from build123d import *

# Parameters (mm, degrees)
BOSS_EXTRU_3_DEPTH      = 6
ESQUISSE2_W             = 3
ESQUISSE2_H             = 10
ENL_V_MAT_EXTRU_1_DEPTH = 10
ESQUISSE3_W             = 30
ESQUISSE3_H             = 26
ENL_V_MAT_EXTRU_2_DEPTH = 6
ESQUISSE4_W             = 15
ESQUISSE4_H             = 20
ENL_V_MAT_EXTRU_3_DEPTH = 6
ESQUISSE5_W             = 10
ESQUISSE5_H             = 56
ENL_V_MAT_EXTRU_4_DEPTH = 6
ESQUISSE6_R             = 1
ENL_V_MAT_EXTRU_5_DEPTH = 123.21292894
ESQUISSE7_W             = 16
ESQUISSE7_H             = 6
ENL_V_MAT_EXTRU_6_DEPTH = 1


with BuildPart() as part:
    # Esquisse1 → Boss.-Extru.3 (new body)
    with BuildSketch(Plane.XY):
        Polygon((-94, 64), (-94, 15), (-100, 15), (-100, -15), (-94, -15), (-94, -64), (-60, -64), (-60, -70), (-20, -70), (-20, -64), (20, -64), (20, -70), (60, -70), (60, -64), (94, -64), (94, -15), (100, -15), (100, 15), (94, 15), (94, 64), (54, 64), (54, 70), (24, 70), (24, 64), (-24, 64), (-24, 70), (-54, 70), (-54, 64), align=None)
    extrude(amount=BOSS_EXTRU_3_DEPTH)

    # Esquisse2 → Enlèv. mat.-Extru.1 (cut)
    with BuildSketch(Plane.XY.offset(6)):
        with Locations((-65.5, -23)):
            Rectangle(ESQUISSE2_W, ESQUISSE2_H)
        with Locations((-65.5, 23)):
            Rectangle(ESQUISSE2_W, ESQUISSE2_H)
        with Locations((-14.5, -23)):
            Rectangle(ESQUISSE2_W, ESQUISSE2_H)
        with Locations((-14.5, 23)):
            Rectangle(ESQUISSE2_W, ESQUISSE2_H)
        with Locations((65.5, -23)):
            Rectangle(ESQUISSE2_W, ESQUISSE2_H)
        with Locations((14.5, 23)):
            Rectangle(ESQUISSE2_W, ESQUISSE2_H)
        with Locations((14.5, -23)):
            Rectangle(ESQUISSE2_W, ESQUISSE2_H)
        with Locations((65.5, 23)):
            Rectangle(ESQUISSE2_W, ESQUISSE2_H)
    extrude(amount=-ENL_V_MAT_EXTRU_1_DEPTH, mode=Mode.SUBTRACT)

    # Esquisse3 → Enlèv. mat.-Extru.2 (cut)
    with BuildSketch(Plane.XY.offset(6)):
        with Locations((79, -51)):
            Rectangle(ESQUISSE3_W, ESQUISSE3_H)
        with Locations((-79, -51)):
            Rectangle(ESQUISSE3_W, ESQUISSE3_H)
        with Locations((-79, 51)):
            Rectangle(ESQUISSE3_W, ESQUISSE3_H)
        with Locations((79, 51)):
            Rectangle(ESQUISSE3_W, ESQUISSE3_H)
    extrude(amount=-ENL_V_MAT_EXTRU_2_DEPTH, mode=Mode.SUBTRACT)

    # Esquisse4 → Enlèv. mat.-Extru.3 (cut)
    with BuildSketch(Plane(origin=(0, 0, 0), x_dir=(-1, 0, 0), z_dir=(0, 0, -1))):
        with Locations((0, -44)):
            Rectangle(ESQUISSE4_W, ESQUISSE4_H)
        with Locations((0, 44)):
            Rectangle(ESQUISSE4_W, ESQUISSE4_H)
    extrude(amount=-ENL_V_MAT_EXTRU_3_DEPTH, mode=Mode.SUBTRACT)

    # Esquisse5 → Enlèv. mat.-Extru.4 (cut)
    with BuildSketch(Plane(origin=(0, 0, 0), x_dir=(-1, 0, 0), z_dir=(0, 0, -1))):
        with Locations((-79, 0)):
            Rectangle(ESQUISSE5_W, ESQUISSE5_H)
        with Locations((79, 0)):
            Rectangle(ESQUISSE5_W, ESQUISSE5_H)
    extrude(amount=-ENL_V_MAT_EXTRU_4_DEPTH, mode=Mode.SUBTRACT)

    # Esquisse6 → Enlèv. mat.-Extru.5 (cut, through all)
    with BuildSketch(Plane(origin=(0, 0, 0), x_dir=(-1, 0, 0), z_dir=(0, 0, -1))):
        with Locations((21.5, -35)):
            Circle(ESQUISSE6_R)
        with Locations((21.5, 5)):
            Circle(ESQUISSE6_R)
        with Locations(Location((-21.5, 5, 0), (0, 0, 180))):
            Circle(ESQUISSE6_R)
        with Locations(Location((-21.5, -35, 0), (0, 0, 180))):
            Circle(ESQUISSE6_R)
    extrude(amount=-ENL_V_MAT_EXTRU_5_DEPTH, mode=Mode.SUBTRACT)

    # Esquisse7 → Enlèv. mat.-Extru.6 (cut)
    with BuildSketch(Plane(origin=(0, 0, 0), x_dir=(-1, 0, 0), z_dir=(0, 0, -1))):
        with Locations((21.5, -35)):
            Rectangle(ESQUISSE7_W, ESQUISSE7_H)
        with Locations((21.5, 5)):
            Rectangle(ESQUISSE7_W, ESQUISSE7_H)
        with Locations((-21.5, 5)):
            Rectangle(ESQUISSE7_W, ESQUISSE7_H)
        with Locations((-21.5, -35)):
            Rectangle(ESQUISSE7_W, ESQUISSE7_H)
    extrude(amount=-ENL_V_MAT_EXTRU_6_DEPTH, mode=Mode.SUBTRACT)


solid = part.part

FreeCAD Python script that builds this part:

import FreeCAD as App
import Part
import Sketcher
from FreeCAD import Vector
Q = App.Units.Quantity


def add_polygon(sketch, points):
    """Adds a closed chain of lines whose ends are joined by coincident constraints."""
    first, n = sketch.GeometryCount, len(points)
    for a, b in zip(points, points[1:] + points[:1]):
        sketch.addGeometry(Part.LineSegment(App.Vector(*a, 0), App.Vector(*b, 0)), False)
    for i in range(n):
        sketch.addConstraint(Sketcher.Constraint("Coincident", first + i, 2, first + (i + 1) % n, 1))

doc = App.newDocument("Part")
body = doc.addObject("PartDesign::Body", "Body")

sketch1 = doc.addObject("Sketcher::SketchObject", "Sketch")
body.addObject(sketch1)
sketch1.AttachmentSupport = (doc.XY_Plane, [""])
sketch1.MapMode = "FlatFace"
add_polygon(sketch1, [(-94, 64), (-94, 15), (-100, 15), (-100, -15), (-94, -15), (-94, -64), (-60, -64), (-60, -70), (-20, -70), (-20, -64), (20, -64), (20, -70), (60, -70), (60, -64), (94, -64), (94, -15), (100, -15), (100, 15), (94, 15), (94, 64), (54, 64), (54, 70), (24, 70), (24, 64), (-24, 64), (-24, 70), (-54, 70), (-54, 64)])
sketch1.addConstraint(Sketcher.Constraint("Vertical", 0))
sketch1.addConstraint(Sketcher.Constraint("Horizontal", 1))
sketch1.addConstraint(Sketcher.Constraint("Vertical", 2))
sketch1.addConstraint(Sketcher.Constraint("Horizontal", 3))
sketch1.addConstraint(Sketcher.Constraint("Vertical", 4))
sketch1.addConstraint(Sketcher.Constraint("Horizontal", 5))
sketch1.addConstraint(Sketcher.Constraint("Vertical", 6))
sketch1.addConstraint(Sketcher.Constraint("Horizontal", 7))
sketch1.addConstraint(Sketcher.Constraint("Vertical", 8))
sketch1.addConstraint(Sketcher.Constraint("Horizontal", 9))
sketch1.addConstraint(Sketcher.Constraint("Vertical", 10))
sketch1.addConstraint(Sketcher.Constraint("Horizontal", 11))
sketch1.addConstraint(Sketcher.Constraint("Vertical", 12))
sketch1.addConstraint(Sketcher.Constraint("Horizontal", 13))
sketch1.addConstraint(Sketcher.Constraint("Vertical", 14))
sketch1.addConstraint(Sketcher.Constraint("Horizontal", 15))
sketch1.addConstraint(Sketcher.Constraint("Vertical", 16))
sketch1.addConstraint(Sketcher.Constraint("Horizontal", 17))
sketch1.addConstraint(Sketcher.Constraint("Vertical", 18))
sketch1.addConstraint(Sketcher.Constraint("Horizontal", 19))
sketch1.addConstraint(Sketcher.Constraint("Vertical", 20))
sketch1.addConstraint(Sketcher.Constraint("Horizontal", 21))
sketch1.addConstraint(Sketcher.Constraint("Vertical", 22))
sketch1.addConstraint(Sketcher.Constraint("Horizontal", 23))
sketch1.addConstraint(Sketcher.Constraint("Vertical", 24))
sketch1.addConstraint(Sketcher.Constraint("Horizontal", 25))
sketch1.addConstraint(Sketcher.Constraint("Vertical", 26))
sketch1.addConstraint(Sketcher.Constraint("Horizontal", 27))
sketch1.addConstraint(Sketcher.Constraint("Symmetric", 0, 2, 14, 2, -1, 1))
sketch1.addConstraint(Sketcher.Constraint("Symmetric", 2, 2, 16, 2, -1, 1))
sketch1.addConstraint(Sketcher.Constraint("Symmetric", 4, 2, 18, 2, -1, 1))
sketch1.addConstraint(Sketcher.Constraint("Symmetric", 7, 2, 10, 2, -2))
sketch1.addConstraint(Sketcher.Constraint("Symmetric", 5, 2, 12, 2, -2))
sketch1.addConstraint(Sketcher.Constraint("Symmetric", 3, 2, 14, 2, -2))
sketch1.addConstraint(Sketcher.Constraint("Symmetric", 21, 2, 24, 2, -2))
sketch1.addConstraint(Sketcher.Constraint("Symmetric", 19, 2, 26, 2, -2))
sketch1.addConstraint(Sketcher.Constraint("Horizontal", 5, 2, 8, 2))
sketch1.addConstraint(Sketcher.Constraint("Horizontal", 19, 2, 22, 2))
sketch1.addConstraint(Sketcher.Constraint("Equal", 7, 9))
sketch1.addConstraint(Sketcher.Constraint("Equal", 11, 19))
sketch1.addConstraint(Sketcher.Constraint("Equal", 25, 2))
sketch1.addConstraint(Sketcher.Constraint("Equal", 17, 6))
sketch1.addConstraint(Sketcher.Constraint("Equal", 12, 20))
sketch1.addConstraint(Sketcher.Constraint("DistanceX", 1, 2, 1, 1, Q("6 mm")))
sketch1.addConstraint(Sketcher.Constraint("DistanceX", 5, 1, 5, 2, Q("34 mm")))
sketch1.addConstraint(Sketcher.Constraint("DistanceX", 7, 1, 7, 2, Q("40 mm")))
sketch1.addConstraint(Sketcher.Constraint("DistanceX", 21, 2, 21, 1, Q("30 mm")))
sketch1.addConstraint(Sketcher.Constraint("DistanceY", 0, 2, 0, 1, Q("49 mm")))
pad1 = doc.addObject("PartDesign::Pad", "Pad")
body.addObject(pad1)
pad1.Profile = sketch1
pad1.Length = 6

sketch2 = doc.addObject("Sketcher::SketchObject", "Sketch001")
body.addObject(sketch2)
sketch2.AttachmentSupport = (doc.XY_Plane, [""])
sketch2.MapMode = "FlatFace"
sketch2.AttachmentOffset = App.Placement(Vector(0, 0, 6), App.Rotation())
add_polygon(sketch2, [(-67, -18), (-67, -28), (-64, -28), (-64, -18)])
add_polygon(sketch2, [(-67, 28), (-67, 18), (-64, 18), (-64, 28)])
add_polygon(sketch2, [(-16, -18), (-16, -28), (-13, -28), (-13, -18)])
add_polygon(sketch2, [(-16, 28), (-16, 18), (-13, 18), (-13, 28)])
add_polygon(sketch2, [(64, -18), (64, -28), (67, -28), (67, -18)])
add_polygon(sketch2, [(13, 28), (13, 18), (16, 18), (16, 28)])
add_polygon(sketch2, [(13, -18), (13, -28), (16, -28), (16, -18)])
add_polygon(sketch2, [(64, 28), (64, 18), (67, 18), (67, 28)])
sketch2.addConstraint(Sketcher.Constraint("Vertical", 0))
sketch2.addConstraint(Sketcher.Constraint("Horizontal", 1))
sketch2.addConstraint(Sketcher.Constraint("Vertical", 2))
sketch2.addConstraint(Sketcher.Constraint("Horizontal", 3))
sketch2.addConstraint(Sketcher.Constraint("Vertical", 4))
sketch2.addConstraint(Sketcher.Constraint("Horizontal", 5))
sketch2.addConstraint(Sketcher.Constraint("Vertical", 6))
sketch2.addConstraint(Sketcher.Constraint("Horizontal", 7))
sketch2.addConstraint(Sketcher.Constraint("Vertical", 8))
sketch2.addConstraint(Sketcher.Constraint("Horizontal", 9))
sketch2.addConstraint(Sketcher.Constraint("Vertical", 10))
sketch2.addConstraint(Sketcher.Constraint("Horizontal", 11))
sketch2.addConstraint(Sketcher.Constraint("Vertical", 12))
sketch2.addConstraint(Sketcher.Constraint("Horizontal", 13))
sketch2.addConstraint(Sketcher.Constraint("Vertical", 14))
sketch2.addConstraint(Sketcher.Constraint("Horizontal", 15))
sketch2.addConstraint(Sketcher.Constraint("Vertical", 16))
sketch2.addConstraint(Sketcher.Constraint("Horizontal", 17))
sketch2.addConstraint(Sketcher.Constraint("Vertical", 18))
sketch2.addConstraint(Sketcher.Constraint("Horizontal", 19))
sketch2.addConstraint(Sketcher.Constraint("Vertical", 20))
sketch2.addConstraint(Sketcher.Constraint("Horizontal", 21))
sketch2.addConstraint(Sketcher.Constraint("Vertical", 22))
sketch2.addConstraint(Sketcher.Constraint("Horizontal", 23))
sketch2.addConstraint(Sketcher.Constraint("Vertical", 24))
sketch2.addConstraint(Sketcher.Constraint("Horizontal", 25))
sketch2.addConstraint(Sketcher.Constraint("Vertical", 26))
sketch2.addConstraint(Sketcher.Constraint("Horizontal", 27))
sketch2.addConstraint(Sketcher.Constraint("Vertical", 28))
sketch2.addConstraint(Sketcher.Constraint("Horizontal", 29))
sketch2.addConstraint(Sketcher.Constraint("Vertical", 30))
sketch2.addConstraint(Sketcher.Constraint("Horizontal", 31))
sketch2.addConstraint(Sketcher.Constraint("Symmetric", 6, 2, 16, 2, -1, 1))
sketch2.addConstraint(Sketcher.Constraint("Symmetric", 4, 2, 18, 2, -1, 1))
sketch2.addConstraint(Sketcher.Constraint("Symmetric", 10, 2, 20, 2, -1, 1))
sketch2.addConstraint(Sketcher.Constraint("Symmetric", 8, 2, 22, 2, -1, 1))
sketch2.addConstraint(Sketcher.Constraint("Symmetric", 14, 2, 24, 2, -1, 1))
sketch2.addConstraint(Sketcher.Constraint("Symmetric", 12, 2, 26, 2, -1, 1))
sketch2.addConstraint(Sketcher.Constraint("Symmetric", 2, 2, 28, 2, -1, 1))
sketch2.addConstraint(Sketcher.Constraint("Symmetric", 0, 2, 30, 2, -1, 1))
sketch2.addConstraint(Sketcher.Constraint("Symmetric", 1, 2, 16, 2, -2))
sketch2.addConstraint(Sketcher.Constraint("Symmetric", 3, 2, 18, 2, -2))
sketch2.addConstraint(Sketcher.Constraint("Symmetric", 13, 2, 20, 2, -2))
sketch2.addConstraint(Sketcher.Constraint("Symmetric", 15, 2, 22, 2, -2))
sketch2.addConstraint(Sketcher.Constraint("Horizontal", 1, 2, 8, 2))
sketch2.addConstraint(Sketcher.Constraint("Horizontal", 3, 2, 10, 2))
sketch2.addConstraint(Sketcher.Constraint("Equal", 7, 9))
sketch2.addConstraint(Sketcher.Constraint("DistanceX", 1, 1, 1, 2, Q("3 mm")))
sketch2.addConstraint(Sketcher.Constraint("DistanceY", 0, 2, 0, 1, Q("10 mm")))
sketch2.addConstraint(Sketcher.Constraint("DistanceX", 0, 2, -1, 1, Q("67 mm")))
sketch2.addConstraint(Sketcher.Constraint("DistanceY", 0, 2, -1, 1, Q("28 mm")))
sketch2.addConstraint(Sketcher.Constraint("DistanceX", 8, 2, -1, 1, Q("16 mm")))
pocket1 = doc.addObject("PartDesign::Pocket", "Pocket")
body.addObject(pocket1)
pocket1.Profile = sketch2
pocket1.Length = 10

sketch3 = doc.addObject("Sketcher::SketchObject", "Sketch002")
body.addObject(sketch3)
sketch3.AttachmentSupport = (doc.XY_Plane, [""])
sketch3.MapMode = "FlatFace"
sketch3.AttachmentOffset = App.Placement(Vector(0, 0, 6), App.Rotation())
add_polygon(sketch3, [(64, -38), (64, -64), (94, -64), (94, -38)])
add_polygon(sketch3, [(-94, -38), (-94, -64), (-64, -64), (-64, -38)])
add_polygon(sketch3, [(-94, 64), (-94, 38), (-64, 38), (-64, 64)])
add_polygon(sketch3, [(64, 64), (64, 38), (94, 38), (94, 64)])
sketch3.addConstraint(Sketcher.Constraint("Vertical", 0))
sketch3.addConstraint(Sketcher.Constraint("Horizontal", 1))
sketch3.addConstraint(Sketcher.Constraint("Vertical", 2))
sketch3.addConstraint(Sketcher.Constraint("Horizontal", 3))
sketch3.addConstraint(Sketcher.Constraint("Vertical", 4))
sketch3.addConstraint(Sketcher.Constraint("Horizontal", 5))
sketch3.addConstraint(Sketcher.Constraint("Vertical", 6))
sketch3.addConstraint(Sketcher.Constraint("Horizontal", 7))
sketch3.addConstraint(Sketcher.Constraint("Vertical", 8))
sketch3.addConstraint(Sketcher.Constraint("Horizontal", 9))
sketch3.addConstraint(Sketcher.Constraint("Vertical", 10))
sketch3.addConstraint(Sketcher.Constraint("Horizontal", 11))
sketch3.addConstraint(Sketcher.Constraint("Vertical", 12))
sketch3.addConstraint(Sketcher.Constraint("Horizontal", 13))
sketch3.addConstraint(Sketcher.Constraint("Vertical", 14))
sketch3.addConstraint(Sketcher.Constraint("Horizontal", 15))
sketch3.addConstraint(Sketcher.Constraint("Symmetric", 2, 2, 8, 2, -1, 1))
sketch3.addConstraint(Sketcher.Constraint("Symmetric", 0, 2, 10, 2, -1, 1))
sketch3.addConstraint(Sketcher.Constraint("Symmetric", 6, 2, 12, 2, -1, 1))
sketch3.addConstraint(Sketcher.Constraint("Symmetric", 4, 2, 14, 2, -1, 1))
sketch3.addConstraint(Sketcher.Constraint("Symmetric", 1, 2, 4, 2, -2))
sketch3.addConstraint(Sketcher.Constraint("Symmetric", 3, 2, 6, 2, -2))
sketch3.addConstraint(Sketcher.Constraint("DistanceX", 1, 1, 1, 2, Q("30 mm")))
sketch3.addConstraint(Sketcher.Constraint("DistanceY", 0, 2, 0, 1, Q("26 mm")))
sketch3.addConstraint(Sketcher.Constraint("DistanceX", -1, 1, 0, 2, Q("64 mm")))
sketch3.addConstraint(Sketcher.Constraint("DistanceY", 0, 2, -1, 1, Q("64 mm")))
pocket2 = doc.addObject("PartDesign::Pocket", "Pocket001")
body.addObject(pocket2)
pocket2.Profile = sketch3
pocket2.Length = 6

sketch4 = doc.addObject("Sketcher::SketchObject", "Sketch003")
body.addObject(sketch4)
sketch4.AttachmentSupport = (doc.XY_Plane, [""])
sketch4.MapMode = "FlatFace"
add_polygon(sketch4, [(7.5, -34), (7.5, -54), (-7.5, -54), (-7.5, -34)])
add_polygon(sketch4, [(7.5, 54), (7.5, 34), (-7.5, 34), (-7.5, 54)])
sketch4.addConstraint(Sketcher.Constraint("Vertical", 0))
sketch4.addConstraint(Sketcher.Constraint("Horizontal", 1))
sketch4.addConstraint(Sketcher.Constraint("Vertical", 2))
sketch4.addConstraint(Sketcher.Constraint("Horizontal", 3))
sketch4.addConstraint(Sketcher.Constraint("Vertical", 4))
sketch4.addConstraint(Sketcher.Constraint("Horizontal", 5))
sketch4.addConstraint(Sketcher.Constraint("Vertical", 6))
sketch4.addConstraint(Sketcher.Constraint("Horizontal", 7))
sketch4.addConstraint(Sketcher.Constraint("Symmetric", 2, 2, 4, 2, -1, 1))
sketch4.addConstraint(Sketcher.Constraint("Symmetric", 0, 2, 6, 2, -1, 1))
sketch4.addConstraint(Sketcher.Constraint("Vertical", 3, 2, 4, 2))
sketch4.addConstraint(Sketcher.Constraint("DistanceX", 1, 2, 1, 1, Q("15 mm")))
sketch4.addConstraint(Sketcher.Constraint("DistanceY", 0, 2, 0, 1, Q("20 mm")))
sketch4.addConstraint(Sketcher.Constraint("DistanceY", 0, 2, -1, 1, Q("54 mm")))
pocket3 = doc.addObject("PartDesign::Pocket", "Pocket002")
body.addObject(pocket3)
pocket3.Profile = sketch4
pocket3.Length = 6
pocket3.Reversed = True

sketch5 = doc.addObject("Sketcher::SketchObject", "Sketch004")
body.addObject(sketch5)
sketch5.AttachmentSupport = (doc.XY_Plane, [""])
sketch5.MapMode = "FlatFace"
add_polygon(sketch5, [(84, 28), (84, -28), (74, -28), (74, 28)])
add_polygon(sketch5, [(-74, 28), (-74, -28), (-84, -28), (-84, 28)])
sketch5.addConstraint(Sketcher.Constraint("Vertical", 0))
sketch5.addConstraint(Sketcher.Constraint("Horizontal", 1))
sketch5.addConstraint(Sketcher.Constraint("Vertical", 2))
sketch5.addConstraint(Sketcher.Constraint("Horizontal", 3))
sketch5.addConstraint(Sketcher.Constraint("Vertical", 4))
sketch5.addConstraint(Sketcher.Constraint("Horizontal", 5))
sketch5.addConstraint(Sketcher.Constraint("Vertical", 6))
sketch5.addConstraint(Sketcher.Constraint("Horizontal", 7))
sketch5.addConstraint(Sketcher.Constraint("Symmetric", 2, 2, 4, 2, -1, 1))
sketch5.addConstraint(Sketcher.Constraint("Symmetric", 0, 2, 6, 2, -1, 1))
sketch5.addConstraint(Sketcher.Constraint("Horizontal", 1, 2, 4, 2))
sketch5.addConstraint(Sketcher.Constraint("DistanceX", 1, 2, 1, 1, Q("10 mm")))
sketch5.addConstraint(Sketcher.Constraint("DistanceY", 0, 2, 0, 1, Q("56 mm")))
sketch5.addConstraint(Sketcher.Constraint("DistanceX", -1, 1, 0, 2, Q("84 mm")))
pocket4 = doc.addObject("PartDesign::Pocket", "Pocket003")
body.addObject(pocket4)
pocket4.Profile = sketch5
pocket4.Length = 6
pocket4.Reversed = True

sketch6 = doc.addObject("Sketcher::SketchObject", "Sketch005")
body.addObject(sketch6)
sketch6.AttachmentSupport = (doc.XY_Plane, [""])
sketch6.MapMode = "FlatFace"
sketch6.addGeometry(Part.Circle(Vector(-21.5, -35, 0), Vector(0, 0, 1), 1), False)
sketch6.addGeometry(Part.Circle(Vector(-21.5, 5, 0), Vector(0, 0, 1), 1), False)
sketch6.addGeometry(Part.Circle(Vector(21.5, 5, 0), Vector(0, 0, 1), 1), False)
sketch6.addGeometry(Part.Circle(Vector(21.5, -35, 0), Vector(0, 0, 1), 1), False)
sketch6.addConstraint(Sketcher.Constraint("Equal", 0, 1))
sketch6.addConstraint(Sketcher.Constraint("Equal", 1, 2))
sketch6.addConstraint(Sketcher.Constraint("Equal", 2, 3))
sketch6.addConstraint(Sketcher.Constraint("Symmetric", 1, 3, 2, 3, -2))
sketch6.addConstraint(Sketcher.Constraint("Symmetric", 0, 3, 3, 3, -2))
sketch6.addConstraint(Sketcher.Constraint("Vertical", 0, 3, 1, 3))
sketch6.addConstraint(Sketcher.Constraint("Diameter", 0, Q("2 mm")))
sketch6.addConstraint(Sketcher.Constraint("DistanceY", 0, 3, -1, 1, Q("35 mm")))
sketch6.addConstraint(Sketcher.Constraint("DistanceY", -1, 1, 1, 3, Q("5 mm")))
sketch6.addConstraint(Sketcher.Constraint("DistanceX", 1, 3, 2, 3, Q("43 mm")))
pocket5 = doc.addObject("PartDesign::Pocket", "Pocket004")
body.addObject(pocket5)
pocket5.Profile = sketch6
pocket5.Type = "ThroughAll"
pocket5.Reversed = True

sketch7 = doc.addObject("Sketcher::SketchObject", "Sketch006")
body.addObject(sketch7)
sketch7.AttachmentSupport = (doc.XY_Plane, [""])
sketch7.MapMode = "FlatFace"
add_polygon(sketch7, [(-14, -32), (-14, -38), (-30, -38), (-30, -32)])
add_polygon(sketch7, [(-14, 8), (-14, 2), (-30, 2), (-30, 8)])
add_polygon(sketch7, [(30, 8), (30, 2), (14, 2), (14, 8)])
add_polygon(sketch7, [(30, -32), (30, -38), (14, -38), (14, -32)])
sketch7.addConstraint(Sketcher.Constraint("Vertical", 0))
sketch7.addConstraint(Sketcher.Constraint("Horizontal", 1))
sketch7.addConstraint(Sketcher.Constraint("Vertical", 2))
sketch7.addConstraint(Sketcher.Constraint("Horizontal", 3))
sketch7.addConstraint(Sketcher.Constraint("Vertical", 4))
sketch7.addConstraint(Sketcher.Constraint("Horizontal", 5))
sketch7.addConstraint(Sketcher.Constraint("Vertical", 6))
sketch7.addConstraint(Sketcher.Constraint("Horizontal", 7))
sketch7.addConstraint(Sketcher.Constraint("Vertical", 8))
sketch7.addConstraint(Sketcher.Constraint("Horizontal", 9))
sketch7.addConstraint(Sketcher.Constraint("Vertical", 10))
sketch7.addConstraint(Sketcher.Constraint("Horizontal", 11))
sketch7.addConstraint(Sketcher.Constraint("Vertical", 12))
sketch7.addConstraint(Sketcher.Constraint("Horizontal", 13))
sketch7.addConstraint(Sketcher.Constraint("Vertical", 14))
sketch7.addConstraint(Sketcher.Constraint("Horizontal", 15))
sketch7.addConstraint(Sketcher.Constraint("Symmetric", 5, 2, 8, 2, -2))
sketch7.addConstraint(Sketcher.Constraint("Symmetric", 7, 2, 10, 2, -2))
sketch7.addConstraint(Sketcher.Constraint("Symmetric", 1, 2, 12, 2, -2))
sketch7.addConstraint(Sketcher.Constraint("Symmetric", 3, 2, 14, 2, -2))
sketch7.addConstraint(Sketcher.Constraint("Vertical", 3, 2, 4, 2))
sketch7.addConstraint(Sketcher.Constraint("Vertical", 2, 2, 5, 2))
sketch7.addConstraint(Sketcher.Constraint("Equal", 2, 4))
sketch7.addConstraint(Sketcher.Constraint("DistanceX", 1, 2, 1, 1, Q("16 mm")))
sketch7.addConstraint(Sketcher.Constraint("DistanceY", 0, 2, 0, 1, Q("6 mm")))
sketch7.addConstraint(Sketcher.Constraint("DistanceY", 0, 2, -1, 1, Q("38 mm")))
sketch7.addConstraint(Sketcher.Constraint("DistanceY", -1, 1, 4, 2, Q("2 mm")))
sketch7.addConstraint(Sketcher.Constraint("DistanceX", 4, 2, 8, 2, Q("43 mm")))
pocket6 = doc.addObject("PartDesign::Pocket", "Pocket005")
body.addObject(pocket6)
pocket6.Profile = sketch7
pocket6.Length = 1
pocket6.Reversed = True

doc.recompute()
